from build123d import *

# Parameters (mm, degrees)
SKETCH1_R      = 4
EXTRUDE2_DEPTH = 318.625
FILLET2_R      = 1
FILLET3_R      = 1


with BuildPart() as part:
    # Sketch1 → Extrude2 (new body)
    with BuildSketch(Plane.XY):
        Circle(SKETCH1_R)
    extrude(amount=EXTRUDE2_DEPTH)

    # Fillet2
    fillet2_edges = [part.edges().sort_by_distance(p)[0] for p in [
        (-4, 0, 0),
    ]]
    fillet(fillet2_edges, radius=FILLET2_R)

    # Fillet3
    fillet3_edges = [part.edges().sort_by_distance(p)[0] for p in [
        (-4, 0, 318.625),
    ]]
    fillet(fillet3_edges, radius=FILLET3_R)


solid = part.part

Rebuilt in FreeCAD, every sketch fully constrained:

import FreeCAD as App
import Part
import Sketcher
from FreeCAD import Vector


def edges_at(feature, points):
    """Names of the edges that pass closest to the given points."""
    edges = feature.Shape.Edges
    near = lambda p: min(range(len(edges)), key=lambda i: edges[i].distToShape(Part.Vertex(*p))[0])
    return sorted({f"Edge{near(p) + 1}" for p in points})

doc = App.newDocument("Part")
body = doc.addObject("PartDesign::Body", "Body")

# Sketch on XY plane
sketch1 = body.newObject("Sketcher::SketchObject", "Sketch")
sketch1.AttachmentSupport = (doc.getObject("XY_Plane"), [""])
sketch1.MapMode = "FlatFace"
sketch1.addGeometry(Part.Circle(Vector(0, 0, 0), Vector(0, 0, 1), 4), False)
sketch1.addConstraint([
    Sketcher.Constraint("Coincident", 0, 3, -1, 1),
    Sketcher.Constraint("Diameter", 0, 8.0),
])
pad1 = body.newObject("PartDesign::Pad", "Pad")
pad1.Profile = sketch1
pad1.Length = 318.625
doc.recompute()

fillet = body.newObject("PartDesign::Fillet", "Fillet")
fillet.Base = (pad1, edges_at(pad1, [(-4, 0, 0)]))
fillet.Radius = 1
doc.recompute()

fillet2 = body.newObject("PartDesign::Fillet", "Fillet001")
fillet2.Base = (fillet, edges_at(fillet, [(-4, 0, 318.625)]))
fillet2.Radius = 1

doc.recompute()
